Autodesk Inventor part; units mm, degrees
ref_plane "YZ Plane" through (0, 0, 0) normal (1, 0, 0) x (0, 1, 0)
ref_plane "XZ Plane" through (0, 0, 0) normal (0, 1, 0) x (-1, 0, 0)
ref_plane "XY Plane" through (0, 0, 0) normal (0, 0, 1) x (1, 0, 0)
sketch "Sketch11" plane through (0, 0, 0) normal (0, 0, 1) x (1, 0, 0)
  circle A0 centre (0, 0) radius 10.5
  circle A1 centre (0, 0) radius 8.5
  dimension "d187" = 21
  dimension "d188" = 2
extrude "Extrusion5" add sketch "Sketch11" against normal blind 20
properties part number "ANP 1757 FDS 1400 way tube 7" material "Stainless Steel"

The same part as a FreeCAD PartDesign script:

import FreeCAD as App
import Part
import Sketcher

V = App.Vector

doc = App.newDocument("Part")
body = doc.addObject("PartDesign::Body", "Body")

sketch1 = body.newObject("Sketcher::SketchObject", "Sketch")
sketch1.AttachmentSupport = (doc.getObject("XY_Plane"), [""])
sketch1.MapMode = "FlatFace"
sketch1.addGeometry(Part.Circle(V(0, 0, 0), V(0, 0, 1), 10.5), False)
sketch1.addGeometry(Part.Circle(V(0, 0, 0), V(0, 0, 1), 8.5), False)
sketch1.addConstraint(Sketcher.Constraint("Coincident", 0, 3, -1, 1))
sketch1.addConstraint(Sketcher.Constraint("Coincident", 1, 3, -1, 1))
sketch1.addConstraint(Sketcher.Constraint("Diameter", 0, 21.0))
sketch1.addConstraint(Sketcher.Constraint("Diameter", 1, 17.0))
pad1 = body.newObject("PartDesign::Pad", "Pad")
pad1.Profile = sketch1
pad1.Length = 20
pad1.Reversed = True

doc.recompute()
